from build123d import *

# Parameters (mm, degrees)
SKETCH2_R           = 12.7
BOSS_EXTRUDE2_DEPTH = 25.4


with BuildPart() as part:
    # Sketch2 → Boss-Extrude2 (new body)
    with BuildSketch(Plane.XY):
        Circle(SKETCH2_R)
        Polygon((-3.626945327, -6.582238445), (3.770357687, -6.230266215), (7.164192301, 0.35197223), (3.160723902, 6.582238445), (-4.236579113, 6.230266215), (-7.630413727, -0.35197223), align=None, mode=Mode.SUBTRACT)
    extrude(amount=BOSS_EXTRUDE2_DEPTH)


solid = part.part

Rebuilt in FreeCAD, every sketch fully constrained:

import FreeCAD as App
import Part
import Sketcher
Q = App.Units.Quantity

doc = App.newDocument("Part")
body = doc.addObject("PartDesign::Body", "Body")

sketch1 = body.newObject("Sketcher::SketchObject", "Sketch")
sketch1.AttachmentSupport = (doc.getObject("XY_Plane"), [""])
sketch1.MapMode = "FlatFace"
sketch1.addGeometry([
    Part.Circle(App.Vector(0, 0, 0), App.Vector(0, 0, 1), 12.7),
    Part.LineSegment(App.Vector(3.770358, -6.230266, 0), App.Vector(-3.626945, -6.582238, 0)),
    Part.LineSegment(App.Vector(-3.626945, -6.582238, 0), App.Vector(-7.630414, -0.351972, 0)),
    Part.LineSegment(App.Vector(-7.630414, -0.351972, 0), App.Vector(-4.236579, 6.230266, 0)),
    Part.LineSegment(App.Vector(-4.236579, 6.230266, 0), App.Vector(3.160724, 6.582238, 0)),
    Part.LineSegment(App.Vector(3.160724, 6.582238, 0), App.Vector(7.164192, 0.351972, 0)),
    Part.LineSegment(App.Vector(7.164192, 0.351972, 0), App.Vector(3.770358, -6.230266, 0)),
], False)
sketch1.addConstraint([
    Sketcher.Constraint("Coincident", 1, 2, 2, 1),
    Sketcher.Constraint("Coincident", 2, 2, 3, 1),
    Sketcher.Constraint("Coincident", 3, 2, 4, 1),
    Sketcher.Constraint("Coincident", 4, 2, 5, 1),
    Sketcher.Constraint("Coincident", 5, 2, 6, 1),
    Sketcher.Constraint("Coincident", 6, 2, 1, 1),
    Sketcher.Constraint("Coincident", 0, 3, -1, 1),
    Sketcher.Constraint("Parallel", 1, 4),
    Sketcher.Constraint("Parallel", 2, 5),
    Sketcher.Constraint("Parallel", 3, 6),
    Sketcher.Constraint("Equal", 1, 2),
    Sketcher.Constraint("Equal", 2, 3),
    Sketcher.Constraint("Equal", 3, 4),
    Sketcher.Constraint("Diameter", 0, Q("1 in")),
    Sketcher.Constraint("Distance", 1, 7.405672),
    Sketcher.Constraint("DistanceY", 1, 2, -1, 1, 6.582238),
    Sketcher.Constraint("DistanceX", 3, 2, -1, 1, 4.236579),
    Sketcher.Constraint("DistanceY", -1, 1, 4, 2, 6.582238),
    Sketcher.Constraint("DistanceX", 2, 2, 1, 2, 4.003468),
    Sketcher.Constraint("DistanceY", 2, 2, 3, 2, 6.582238),
])
pad1 = body.newObject("PartDesign::Pad", "Pad")
pad1.Profile = sketch1
pad1.Length = Q("1 in")

doc.recompute()
